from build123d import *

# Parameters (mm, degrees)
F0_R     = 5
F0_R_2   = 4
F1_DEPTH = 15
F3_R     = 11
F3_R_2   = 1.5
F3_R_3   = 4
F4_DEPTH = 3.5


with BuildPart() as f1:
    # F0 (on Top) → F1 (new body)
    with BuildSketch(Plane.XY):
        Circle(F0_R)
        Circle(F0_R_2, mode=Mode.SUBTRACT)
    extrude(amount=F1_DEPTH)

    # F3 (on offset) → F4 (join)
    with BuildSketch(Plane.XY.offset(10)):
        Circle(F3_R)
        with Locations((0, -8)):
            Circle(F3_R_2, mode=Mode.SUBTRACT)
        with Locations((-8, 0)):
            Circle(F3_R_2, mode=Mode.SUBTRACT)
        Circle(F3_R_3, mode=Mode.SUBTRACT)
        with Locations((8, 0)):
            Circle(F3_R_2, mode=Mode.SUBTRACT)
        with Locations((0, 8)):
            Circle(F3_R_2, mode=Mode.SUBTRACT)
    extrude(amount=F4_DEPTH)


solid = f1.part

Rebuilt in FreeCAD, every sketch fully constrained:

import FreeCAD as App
import Part
import Sketcher

doc = App.newDocument("Part")
params = doc.addObject("Spreadsheet::Sheet", "Params")
for row, (alias, value) in enumerate([
    ("sketch1_diameter", "10 mm"),
    ("sketch1_diameter2", "8 mm"),
    ("pad1_length", "15 mm"),
    ("sketch2_diameter", "22 mm"),
    ("sketch2_diameter2", "3 mm"),
    ("sketch2_diameter3", "8 mm"),
    ("pad2_length", "3.5 mm"),
], start=1):
    params.set(f"A{row}", alias)
    params.set(f"B{row}", "=" + value)
    params.setAlias(f"B{row}", alias)

body = doc.addObject("PartDesign::Body", "Body")

sketch1 = body.newObject("Sketcher::SketchObject", "Sketch")
sketch1.AttachmentSupport = (doc.getObject("XY_Plane"), [""])
sketch1.MapMode = "FlatFace"
sketch1.addGeometry([
    Part.Circle(App.Vector(0, 0, 0), App.Vector(0, 0, 1), 5),
    Part.Circle(App.Vector(0, 0, 0), App.Vector(0, 0, 1), 4),
], False)
sketch1.addConstraint([
    Sketcher.Constraint("Coincident", 0, 3, -1, 1),
    Sketcher.Constraint("Coincident", 1, 3, -1, 1),
    Sketcher.Constraint("Diameter", 0, 10.0),
    Sketcher.Constraint("Diameter", 1, 8.0),
])
sketch1.setExpression("Constraints[2]", "Params.sketch1_diameter")
sketch1.setExpression("Constraints[3]", "Params.sketch1_diameter2")
pad1 = body.newObject("PartDesign::Pad", "Pad")
pad1.Profile = sketch1
pad1.setExpression("Length", "Params.pad1_length")

sketch2 = body.newObject("Sketcher::SketchObject", "Sketch001")
sketch2.AttachmentSupport = (doc.getObject("XY_Plane"), [""])
sketch2.MapMode = "FlatFace"
sketch2.AttachmentOffset = App.Placement(App.Vector(0, 0, 10), App.Rotation())
sketch2.addGeometry([
    Part.Circle(App.Vector(0, 0, 0), App.Vector(0, 0, 1), 11),
    Part.Circle(App.Vector(0, -8, 0), App.Vector(0, 0, 1), 1.5),
    Part.Circle(App.Vector(-8, 0, 0), App.Vector(0, 0, 1), 1.5),
    Part.Circle(App.Vector(0, 0, 0), App.Vector(0, 0, 1), 4),
    Part.Circle(App.Vector(8, 0, 0), App.Vector(0, 0, 1), 1.5),
    Part.Circle(App.Vector(0, 8, 0), App.Vector(0, 0, 1), 1.5),
], False)
sketch2.addConstraint([
    Sketcher.Constraint("Coincident", 0, 3, -1, 1),
    Sketcher.Constraint("Coincident", 3, 3, -1, 1),
    Sketcher.Constraint("Equal", 1, 2),
    Sketcher.Constraint("Equal", 2, 4),
    Sketcher.Constraint("Equal", 4, 5),
    Sketcher.Constraint("Symmetric", 2, 3, 4, 3, -1, 1),
    Sketcher.Constraint("Symmetric", 1, 3, 5, 3, -1, 1),
    Sketcher.Constraint("PointOnObject", 1, 3, -2),
    Sketcher.Constraint("PointOnObject", 2, 3, -1),
    Sketcher.Constraint("Diameter", 0, 22.0),
    Sketcher.Constraint("Diameter", 1, 3.0),
    Sketcher.Constraint("Diameter", 3, 8.0),
    Sketcher.Constraint("DistanceY", 1, 3, -1, 1, 8.0),
    Sketcher.Constraint("DistanceX", 2, 3, -1, 1, 8.0),
])
sketch2.setExpression("Constraints[9]", "Params.sketch2_diameter")
sketch2.setExpression("Constraints[10]", "Params.sketch2_diameter2")
sketch2.setExpression("Constraints[11]", "Params.sketch2_diameter3")
pad2 = body.newObject("PartDesign::Pad", "Pad001")
pad2.Profile = sketch2
pad2.setExpression("Length", "Params.pad2_length")

doc.recompute()
